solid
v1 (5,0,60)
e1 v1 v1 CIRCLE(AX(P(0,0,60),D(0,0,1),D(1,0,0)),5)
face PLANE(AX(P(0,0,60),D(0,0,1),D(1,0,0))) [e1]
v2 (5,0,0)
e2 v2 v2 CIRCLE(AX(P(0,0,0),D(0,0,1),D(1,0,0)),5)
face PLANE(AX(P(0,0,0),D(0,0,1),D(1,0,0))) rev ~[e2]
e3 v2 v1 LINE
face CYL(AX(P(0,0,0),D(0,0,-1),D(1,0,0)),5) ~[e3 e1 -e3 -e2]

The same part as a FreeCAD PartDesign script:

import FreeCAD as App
import Part
import Sketcher

doc = App.newDocument("Part")
body = doc.addObject("PartDesign::Body", "Body")

sketch1 = doc.addObject("Sketcher::SketchObject", "Sketch")
body.addObject(sketch1)
sketch1.AttachmentSupport = (doc.XY_Plane, [""])
sketch1.MapMode = "FlatFace"
sketch1.addGeometry(Part.Circle(App.Vector(0, 0, 0), App.Vector(0, 0, 1), 5), False)
sketch1.addConstraint(Sketcher.Constraint("Coincident", 0, 3, -1, 1))
sketch1.addConstraint(Sketcher.Constraint("Diameter", 0, 10.0))
pad1 = doc.addObject("PartDesign::Pad", "Pad")
body.addObject(pad1)
pad1.Profile = sketch1
pad1.Length = 60

doc.recompute()
